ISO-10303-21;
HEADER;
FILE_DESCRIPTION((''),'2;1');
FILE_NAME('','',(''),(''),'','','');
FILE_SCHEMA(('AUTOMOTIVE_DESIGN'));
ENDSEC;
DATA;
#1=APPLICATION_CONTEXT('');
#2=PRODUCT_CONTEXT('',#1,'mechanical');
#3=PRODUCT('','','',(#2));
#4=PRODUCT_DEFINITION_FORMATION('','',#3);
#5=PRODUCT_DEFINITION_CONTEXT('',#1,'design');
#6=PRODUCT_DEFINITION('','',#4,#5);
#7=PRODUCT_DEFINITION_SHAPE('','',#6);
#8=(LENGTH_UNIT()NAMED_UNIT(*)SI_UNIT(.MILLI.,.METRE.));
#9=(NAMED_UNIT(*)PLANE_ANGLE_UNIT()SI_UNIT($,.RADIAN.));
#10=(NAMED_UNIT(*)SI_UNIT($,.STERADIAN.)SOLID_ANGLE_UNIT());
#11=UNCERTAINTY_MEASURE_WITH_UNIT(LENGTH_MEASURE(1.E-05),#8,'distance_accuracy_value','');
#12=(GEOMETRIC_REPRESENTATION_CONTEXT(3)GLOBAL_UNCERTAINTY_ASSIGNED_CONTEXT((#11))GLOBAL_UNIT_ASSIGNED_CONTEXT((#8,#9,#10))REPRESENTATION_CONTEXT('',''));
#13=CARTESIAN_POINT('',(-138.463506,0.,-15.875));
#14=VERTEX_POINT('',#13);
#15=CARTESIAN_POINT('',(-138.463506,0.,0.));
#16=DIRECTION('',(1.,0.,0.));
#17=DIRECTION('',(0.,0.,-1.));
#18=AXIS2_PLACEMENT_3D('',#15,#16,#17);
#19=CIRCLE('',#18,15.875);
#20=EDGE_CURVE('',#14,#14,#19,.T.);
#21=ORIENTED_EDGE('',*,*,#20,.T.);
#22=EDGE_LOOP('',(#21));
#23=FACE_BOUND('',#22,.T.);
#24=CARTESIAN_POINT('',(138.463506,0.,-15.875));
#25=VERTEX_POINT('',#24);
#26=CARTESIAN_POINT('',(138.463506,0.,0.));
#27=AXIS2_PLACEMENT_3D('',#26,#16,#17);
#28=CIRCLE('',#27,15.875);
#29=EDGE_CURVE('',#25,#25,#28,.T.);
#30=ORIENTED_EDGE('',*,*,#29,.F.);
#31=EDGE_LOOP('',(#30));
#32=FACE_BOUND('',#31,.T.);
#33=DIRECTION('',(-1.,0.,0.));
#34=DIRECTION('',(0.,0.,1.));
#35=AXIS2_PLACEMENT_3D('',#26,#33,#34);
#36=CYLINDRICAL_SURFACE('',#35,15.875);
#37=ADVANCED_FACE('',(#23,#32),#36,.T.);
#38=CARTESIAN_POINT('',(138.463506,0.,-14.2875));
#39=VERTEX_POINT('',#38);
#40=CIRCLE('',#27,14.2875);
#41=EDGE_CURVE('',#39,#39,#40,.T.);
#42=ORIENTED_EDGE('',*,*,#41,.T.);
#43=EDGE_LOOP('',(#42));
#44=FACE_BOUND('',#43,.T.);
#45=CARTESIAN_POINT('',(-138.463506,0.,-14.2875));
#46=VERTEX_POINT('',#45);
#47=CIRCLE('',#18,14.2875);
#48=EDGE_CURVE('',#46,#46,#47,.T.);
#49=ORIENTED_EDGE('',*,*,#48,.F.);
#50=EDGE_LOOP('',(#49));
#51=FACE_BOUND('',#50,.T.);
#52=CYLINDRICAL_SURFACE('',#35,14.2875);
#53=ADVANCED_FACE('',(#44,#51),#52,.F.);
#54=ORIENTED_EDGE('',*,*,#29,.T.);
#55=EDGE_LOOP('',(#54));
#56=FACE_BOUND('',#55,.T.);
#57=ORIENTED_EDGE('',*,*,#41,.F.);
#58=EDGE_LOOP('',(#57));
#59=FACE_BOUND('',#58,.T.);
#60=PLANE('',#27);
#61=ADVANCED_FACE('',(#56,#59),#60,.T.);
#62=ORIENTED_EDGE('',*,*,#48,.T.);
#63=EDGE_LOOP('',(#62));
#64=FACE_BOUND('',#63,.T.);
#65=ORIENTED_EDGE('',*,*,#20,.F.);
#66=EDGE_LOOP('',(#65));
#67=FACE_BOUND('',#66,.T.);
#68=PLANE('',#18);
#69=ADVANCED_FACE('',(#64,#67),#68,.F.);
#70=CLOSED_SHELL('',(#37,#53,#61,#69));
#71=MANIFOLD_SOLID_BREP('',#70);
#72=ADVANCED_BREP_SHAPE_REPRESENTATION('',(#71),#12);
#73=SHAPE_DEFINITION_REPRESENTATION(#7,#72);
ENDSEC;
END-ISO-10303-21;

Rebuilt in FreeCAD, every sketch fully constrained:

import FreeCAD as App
import Part
import Sketcher

V = App.Vector
Q = App.Units.Quantity

doc = App.newDocument("Part")
body = doc.addObject("PartDesign::Body", "Body")

# Sketch on YZ plane
sketch1 = doc.addObject("Sketcher::SketchObject", "Sketch")
body.addObject(sketch1)
sketch1.AttachmentSupport = (doc.YZ_Plane, [""])
sketch1.MapMode = "FlatFace"
sketch1.addGeometry(Part.Circle(V(0, 0, 0), V(0, 0, 1), 15.875), False)
sketch1.addGeometry(Part.Circle(V(0, 0, 0), V(0, 0, 1), 14.2875), False)
sketch1.addConstraint(Sketcher.Constraint("Coincident", 0, 3, -1, 1))
sketch1.addConstraint(Sketcher.Constraint("Coincident", 1, 3, -1, 1))
sketch1.addConstraint(Sketcher.Constraint("Diameter", 0, Q("1.25 in")))
sketch1.addConstraint(Sketcher.Constraint("Diameter", 1, Q("1.125 in")))
pad1 = doc.addObject("PartDesign::Pad", "Pad")
body.addObject(pad1)
pad1.Profile = sketch1
pad1.Length = 276.927012
pad1.Midplane = True

doc.recompute()
